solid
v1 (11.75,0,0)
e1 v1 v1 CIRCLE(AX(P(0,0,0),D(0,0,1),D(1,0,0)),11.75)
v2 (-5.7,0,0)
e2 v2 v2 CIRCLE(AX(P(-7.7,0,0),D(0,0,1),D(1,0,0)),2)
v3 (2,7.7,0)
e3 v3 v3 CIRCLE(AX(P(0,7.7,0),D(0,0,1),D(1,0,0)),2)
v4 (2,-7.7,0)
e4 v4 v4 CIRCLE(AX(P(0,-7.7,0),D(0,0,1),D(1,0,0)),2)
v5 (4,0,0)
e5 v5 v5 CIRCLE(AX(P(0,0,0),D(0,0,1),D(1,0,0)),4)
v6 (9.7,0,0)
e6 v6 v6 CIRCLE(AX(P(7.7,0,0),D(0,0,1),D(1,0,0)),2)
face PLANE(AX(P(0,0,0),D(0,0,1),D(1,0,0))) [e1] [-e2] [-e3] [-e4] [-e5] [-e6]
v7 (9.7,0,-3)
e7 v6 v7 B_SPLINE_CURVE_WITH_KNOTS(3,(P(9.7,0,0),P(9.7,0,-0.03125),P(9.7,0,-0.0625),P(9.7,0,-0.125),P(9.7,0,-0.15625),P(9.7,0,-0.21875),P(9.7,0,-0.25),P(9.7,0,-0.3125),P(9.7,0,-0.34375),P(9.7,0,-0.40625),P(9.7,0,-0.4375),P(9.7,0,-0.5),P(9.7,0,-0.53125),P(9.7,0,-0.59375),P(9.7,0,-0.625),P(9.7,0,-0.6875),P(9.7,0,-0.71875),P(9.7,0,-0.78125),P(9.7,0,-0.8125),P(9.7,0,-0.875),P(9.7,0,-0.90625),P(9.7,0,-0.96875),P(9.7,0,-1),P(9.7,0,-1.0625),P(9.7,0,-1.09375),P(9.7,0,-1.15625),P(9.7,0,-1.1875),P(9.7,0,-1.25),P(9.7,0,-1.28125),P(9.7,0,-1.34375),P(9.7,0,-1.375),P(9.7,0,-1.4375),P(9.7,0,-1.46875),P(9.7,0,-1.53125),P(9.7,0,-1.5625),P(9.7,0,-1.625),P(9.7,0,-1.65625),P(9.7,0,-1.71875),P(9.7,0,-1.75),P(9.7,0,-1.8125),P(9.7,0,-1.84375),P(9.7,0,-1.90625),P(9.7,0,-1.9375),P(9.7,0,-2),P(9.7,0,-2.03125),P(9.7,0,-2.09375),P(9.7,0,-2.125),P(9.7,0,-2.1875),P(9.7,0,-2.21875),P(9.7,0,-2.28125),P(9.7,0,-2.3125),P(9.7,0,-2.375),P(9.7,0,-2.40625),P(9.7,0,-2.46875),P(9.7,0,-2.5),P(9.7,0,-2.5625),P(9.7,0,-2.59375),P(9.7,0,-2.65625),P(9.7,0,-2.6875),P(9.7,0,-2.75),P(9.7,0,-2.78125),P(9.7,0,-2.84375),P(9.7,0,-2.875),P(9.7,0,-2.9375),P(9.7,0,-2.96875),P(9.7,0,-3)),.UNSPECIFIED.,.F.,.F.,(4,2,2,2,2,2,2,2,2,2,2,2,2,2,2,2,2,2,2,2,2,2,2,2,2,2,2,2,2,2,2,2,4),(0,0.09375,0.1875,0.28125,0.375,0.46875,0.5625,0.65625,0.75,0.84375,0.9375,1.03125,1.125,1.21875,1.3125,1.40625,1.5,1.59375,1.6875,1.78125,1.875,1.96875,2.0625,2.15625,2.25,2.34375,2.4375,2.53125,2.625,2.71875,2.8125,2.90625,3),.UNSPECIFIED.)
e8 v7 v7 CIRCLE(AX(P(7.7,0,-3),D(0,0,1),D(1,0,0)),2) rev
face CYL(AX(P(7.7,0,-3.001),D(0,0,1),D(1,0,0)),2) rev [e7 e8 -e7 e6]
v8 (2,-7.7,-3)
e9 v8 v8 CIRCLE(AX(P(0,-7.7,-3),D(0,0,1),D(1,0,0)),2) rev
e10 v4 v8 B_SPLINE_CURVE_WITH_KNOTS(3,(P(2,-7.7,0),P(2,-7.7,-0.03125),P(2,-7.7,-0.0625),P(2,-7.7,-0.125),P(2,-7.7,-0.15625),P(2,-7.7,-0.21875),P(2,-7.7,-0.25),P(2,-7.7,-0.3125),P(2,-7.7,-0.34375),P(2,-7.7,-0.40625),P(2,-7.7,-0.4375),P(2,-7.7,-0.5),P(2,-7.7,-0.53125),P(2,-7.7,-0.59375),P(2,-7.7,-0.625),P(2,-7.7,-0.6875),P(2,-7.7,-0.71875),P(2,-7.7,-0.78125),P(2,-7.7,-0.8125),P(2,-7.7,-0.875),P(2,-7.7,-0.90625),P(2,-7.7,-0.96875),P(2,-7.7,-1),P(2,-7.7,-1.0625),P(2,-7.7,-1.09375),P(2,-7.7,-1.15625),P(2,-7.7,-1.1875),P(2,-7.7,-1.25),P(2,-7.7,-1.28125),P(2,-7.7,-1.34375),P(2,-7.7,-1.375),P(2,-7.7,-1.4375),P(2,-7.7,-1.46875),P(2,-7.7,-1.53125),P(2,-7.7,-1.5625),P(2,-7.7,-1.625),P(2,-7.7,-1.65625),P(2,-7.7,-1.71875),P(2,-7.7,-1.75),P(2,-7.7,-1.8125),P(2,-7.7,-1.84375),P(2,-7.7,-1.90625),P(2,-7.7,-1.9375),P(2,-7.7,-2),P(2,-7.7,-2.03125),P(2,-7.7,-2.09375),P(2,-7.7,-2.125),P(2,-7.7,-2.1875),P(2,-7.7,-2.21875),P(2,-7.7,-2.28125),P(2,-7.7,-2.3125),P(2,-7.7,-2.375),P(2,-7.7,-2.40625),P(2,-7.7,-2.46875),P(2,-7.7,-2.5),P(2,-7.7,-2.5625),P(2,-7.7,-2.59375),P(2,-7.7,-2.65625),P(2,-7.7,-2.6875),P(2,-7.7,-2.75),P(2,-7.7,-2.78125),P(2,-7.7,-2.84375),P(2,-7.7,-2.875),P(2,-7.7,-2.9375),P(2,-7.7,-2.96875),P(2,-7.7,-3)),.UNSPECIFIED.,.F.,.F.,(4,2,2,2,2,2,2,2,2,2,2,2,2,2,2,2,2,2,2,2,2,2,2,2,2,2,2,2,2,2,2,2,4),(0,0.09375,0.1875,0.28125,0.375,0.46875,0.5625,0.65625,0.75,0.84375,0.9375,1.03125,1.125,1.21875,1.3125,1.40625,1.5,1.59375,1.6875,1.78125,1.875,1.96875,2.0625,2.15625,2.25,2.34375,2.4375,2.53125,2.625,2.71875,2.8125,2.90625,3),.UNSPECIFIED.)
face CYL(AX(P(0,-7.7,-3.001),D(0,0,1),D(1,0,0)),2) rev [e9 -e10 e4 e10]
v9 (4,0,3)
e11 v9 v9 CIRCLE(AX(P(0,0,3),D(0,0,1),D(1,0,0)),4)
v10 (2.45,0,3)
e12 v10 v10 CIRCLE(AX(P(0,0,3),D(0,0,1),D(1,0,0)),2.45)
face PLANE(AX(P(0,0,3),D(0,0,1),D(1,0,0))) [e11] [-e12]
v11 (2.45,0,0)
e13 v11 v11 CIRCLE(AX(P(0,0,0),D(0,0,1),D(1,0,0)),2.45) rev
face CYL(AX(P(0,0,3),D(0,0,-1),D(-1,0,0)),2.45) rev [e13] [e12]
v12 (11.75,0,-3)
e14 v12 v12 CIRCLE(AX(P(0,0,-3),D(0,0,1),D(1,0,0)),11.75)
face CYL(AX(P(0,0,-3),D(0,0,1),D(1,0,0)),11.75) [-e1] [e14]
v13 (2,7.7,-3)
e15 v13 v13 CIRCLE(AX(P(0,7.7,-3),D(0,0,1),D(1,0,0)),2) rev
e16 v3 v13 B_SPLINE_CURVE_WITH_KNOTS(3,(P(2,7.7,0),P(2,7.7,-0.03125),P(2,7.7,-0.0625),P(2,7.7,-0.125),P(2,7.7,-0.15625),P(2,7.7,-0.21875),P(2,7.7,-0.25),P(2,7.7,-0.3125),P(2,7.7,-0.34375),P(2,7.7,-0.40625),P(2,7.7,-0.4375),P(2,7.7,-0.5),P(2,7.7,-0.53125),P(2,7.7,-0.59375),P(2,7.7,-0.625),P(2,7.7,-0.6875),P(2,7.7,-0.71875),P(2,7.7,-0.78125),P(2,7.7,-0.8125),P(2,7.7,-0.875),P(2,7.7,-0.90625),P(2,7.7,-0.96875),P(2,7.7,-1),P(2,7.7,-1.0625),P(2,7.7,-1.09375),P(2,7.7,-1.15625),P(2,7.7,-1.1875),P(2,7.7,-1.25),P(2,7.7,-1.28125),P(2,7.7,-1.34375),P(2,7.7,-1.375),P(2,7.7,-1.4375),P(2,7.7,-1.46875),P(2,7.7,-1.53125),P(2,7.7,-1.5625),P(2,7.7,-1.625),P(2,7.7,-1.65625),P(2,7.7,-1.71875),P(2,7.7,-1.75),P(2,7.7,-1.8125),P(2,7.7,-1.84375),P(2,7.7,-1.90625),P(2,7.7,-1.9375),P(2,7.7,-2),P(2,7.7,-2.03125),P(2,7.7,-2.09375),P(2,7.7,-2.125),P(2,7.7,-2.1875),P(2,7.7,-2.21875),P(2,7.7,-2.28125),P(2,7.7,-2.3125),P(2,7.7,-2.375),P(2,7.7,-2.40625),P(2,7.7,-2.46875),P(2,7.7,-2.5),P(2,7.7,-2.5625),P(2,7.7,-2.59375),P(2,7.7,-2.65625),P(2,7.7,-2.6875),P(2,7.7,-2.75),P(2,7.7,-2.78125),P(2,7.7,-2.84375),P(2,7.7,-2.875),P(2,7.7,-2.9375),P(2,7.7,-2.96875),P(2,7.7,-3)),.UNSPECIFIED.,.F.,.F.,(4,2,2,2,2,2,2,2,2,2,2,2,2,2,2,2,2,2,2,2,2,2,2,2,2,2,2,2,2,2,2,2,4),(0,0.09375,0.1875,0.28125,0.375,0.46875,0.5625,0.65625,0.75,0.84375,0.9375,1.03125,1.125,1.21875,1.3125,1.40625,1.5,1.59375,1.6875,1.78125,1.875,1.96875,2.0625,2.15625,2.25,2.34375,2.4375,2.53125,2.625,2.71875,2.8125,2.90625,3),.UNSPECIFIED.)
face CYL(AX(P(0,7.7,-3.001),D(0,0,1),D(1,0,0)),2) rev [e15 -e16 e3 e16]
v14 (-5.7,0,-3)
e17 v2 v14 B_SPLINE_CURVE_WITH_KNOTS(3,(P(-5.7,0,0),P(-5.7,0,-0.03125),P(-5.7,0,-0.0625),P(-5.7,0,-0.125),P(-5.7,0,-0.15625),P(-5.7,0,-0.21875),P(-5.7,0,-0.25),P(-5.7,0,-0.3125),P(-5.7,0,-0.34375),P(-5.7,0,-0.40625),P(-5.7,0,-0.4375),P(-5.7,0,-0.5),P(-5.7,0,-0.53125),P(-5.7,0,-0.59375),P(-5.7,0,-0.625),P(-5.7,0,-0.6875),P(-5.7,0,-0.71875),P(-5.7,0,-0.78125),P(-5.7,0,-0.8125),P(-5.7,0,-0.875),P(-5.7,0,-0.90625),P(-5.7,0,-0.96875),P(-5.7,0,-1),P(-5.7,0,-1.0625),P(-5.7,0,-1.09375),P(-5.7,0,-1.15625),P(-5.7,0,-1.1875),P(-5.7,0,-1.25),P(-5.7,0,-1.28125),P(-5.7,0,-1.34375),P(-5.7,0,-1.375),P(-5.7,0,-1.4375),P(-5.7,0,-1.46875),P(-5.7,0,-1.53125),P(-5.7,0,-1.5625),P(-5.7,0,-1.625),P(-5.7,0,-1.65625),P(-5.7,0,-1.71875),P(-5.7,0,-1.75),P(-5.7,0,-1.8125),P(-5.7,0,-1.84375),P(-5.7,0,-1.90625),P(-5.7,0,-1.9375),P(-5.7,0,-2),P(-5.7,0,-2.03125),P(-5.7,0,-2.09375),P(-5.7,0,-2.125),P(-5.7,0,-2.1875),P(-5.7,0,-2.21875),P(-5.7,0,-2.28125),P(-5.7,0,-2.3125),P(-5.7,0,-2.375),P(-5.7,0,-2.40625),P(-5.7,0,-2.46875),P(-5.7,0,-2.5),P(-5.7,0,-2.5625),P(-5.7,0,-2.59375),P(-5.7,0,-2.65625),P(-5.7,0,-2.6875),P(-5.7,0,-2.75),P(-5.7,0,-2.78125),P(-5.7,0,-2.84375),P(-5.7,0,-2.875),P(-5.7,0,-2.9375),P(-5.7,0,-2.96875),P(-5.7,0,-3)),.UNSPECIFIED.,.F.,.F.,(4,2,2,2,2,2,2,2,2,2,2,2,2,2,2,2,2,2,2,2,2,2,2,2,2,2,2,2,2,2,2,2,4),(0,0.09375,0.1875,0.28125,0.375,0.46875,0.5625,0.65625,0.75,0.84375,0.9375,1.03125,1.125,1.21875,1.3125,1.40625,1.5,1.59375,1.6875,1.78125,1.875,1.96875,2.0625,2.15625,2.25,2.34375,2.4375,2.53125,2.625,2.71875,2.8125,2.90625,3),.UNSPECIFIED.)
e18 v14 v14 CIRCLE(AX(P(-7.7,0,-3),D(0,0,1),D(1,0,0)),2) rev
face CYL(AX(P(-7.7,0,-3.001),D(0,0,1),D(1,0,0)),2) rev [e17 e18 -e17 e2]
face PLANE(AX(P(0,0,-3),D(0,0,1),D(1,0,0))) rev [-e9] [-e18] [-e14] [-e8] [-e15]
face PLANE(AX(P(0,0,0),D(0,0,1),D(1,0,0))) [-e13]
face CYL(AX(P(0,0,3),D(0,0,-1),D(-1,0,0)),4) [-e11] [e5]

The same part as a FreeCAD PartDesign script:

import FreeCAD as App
import Part
import Sketcher
from FreeCAD import Vector
Q = App.Units.Quantity

doc = App.newDocument("Part")
body = doc.addObject("PartDesign::Body", "Body")

sketch1 = body.newObject("Sketcher::SketchObject", "Sketch")
sketch1.AttachmentSupport = (doc.getObject("XY_Plane"), [""])
sketch1.MapMode = "FlatFace"
sketch1.addGeometry(Part.Circle(Vector(0, 0, 0), Vector(0, 0, 1), 11.75), False)
sketch1.addConstraint([
    Sketcher.Constraint("Coincident", 0, 3, -1, 1),
    Sketcher.Constraint("Diameter", 0, Q("23.5 mm")),
])
pad1 = body.newObject("PartDesign::Pad", "Pad")
pad1.Profile = sketch1
pad1.Length = 3
pad1.Reversed = True

sketch2 = body.newObject("Sketcher::SketchObject", "Sketch001")
sketch2.AttachmentSupport = (doc.getObject("XY_Plane"), [""])
sketch2.MapMode = "FlatFace"
sketch2.addGeometry([
    Part.Circle(Vector(0, 0, 0), Vector(0, 0, 1), 4),
    Part.Circle(Vector(0, 0, 0), Vector(0, 0, 1), 2.45),
], False)
sketch2.addConstraint([
    Sketcher.Constraint("Coincident", 0, 3, -1, 1),
    Sketcher.Constraint("Coincident", 1, 3, -1, 1),
    Sketcher.Constraint("Diameter", 0, Q("8 mm")),
    Sketcher.Constraint("Diameter", 1, Q("4.9 mm")),
])
pad2 = body.newObject("PartDesign::Pad", "Pad001")
pad2.Profile = sketch2
pad2.Length = 3

sketch3 = body.newObject("Sketcher::SketchObject", "Sketch002")
sketch3.AttachmentSupport = (doc.getObject("XY_Plane"), [""])
sketch3.MapMode = "FlatFace"
sketch3.addGeometry(Part.Circle(Vector(0, 7.7, 0), Vector(0, 0, 1), 2), False)
sketch3.addConstraint([
    Sketcher.Constraint("PointOnObject", 0, 3, -2),
    Sketcher.Constraint("Diameter", 0, Q("4 mm")),
    Sketcher.Constraint("DistanceY", -1, 1, 0, 3, Q("7.7 mm")),
])
pocket1 = body.newObject("PartDesign::Pocket", "Pocket")
pocket1.Profile = sketch3
pocket1.Type = "UpToFirst"

sketch4 = body.newObject("Sketcher::SketchObject", "Sketch003")
sketch4.AttachmentSupport = (doc.getObject("XY_Plane"), [""])
sketch4.MapMode = "FlatFace"
sketch4.addGeometry(Part.Circle(Vector(7.7, 0, 0), Vector(0, 0, 1), 2), False)
sketch4.addConstraint([
    Sketcher.Constraint("PointOnObject", 0, 3, -1),
    Sketcher.Constraint("Diameter", 0, Q("4 mm")),
    Sketcher.Constraint("DistanceX", -1, 1, 0, 3, Q("7.7 mm")),
])
pocket2 = body.newObject("PartDesign::Pocket", "Pocket001")
pocket2.Profile = sketch4
pocket2.Type = "UpToFirst"

sketch5 = body.newObject("Sketcher::SketchObject", "Sketch004")
sketch5.AttachmentSupport = (doc.getObject("XY_Plane"), [""])
sketch5.MapMode = "FlatFace"
sketch5.addGeometry(Part.Circle(Vector(0, -7.7, 0), Vector(0, 0, 1), 2), False)
sketch5.addConstraint([
    Sketcher.Constraint("PointOnObject", 0, 3, -2),
    Sketcher.Constraint("Diameter", 0, Q("4 mm")),
    Sketcher.Constraint("DistanceY", 0, 3, -1, 1, Q("7.7 mm")),
])
pocket3 = body.newObject("PartDesign::Pocket", "Pocket002")
pocket3.Profile = sketch5
pocket3.Type = "UpToFirst"

sketch6 = body.newObject("Sketcher::SketchObject", "Sketch005")
sketch6.AttachmentSupport = (doc.getObject("XY_Plane"), [""])
sketch6.MapMode = "FlatFace"
sketch6.addGeometry(Part.Circle(Vector(-7.7, 0, 0), Vector(0, 0, 1), 2), False)
sketch6.addConstraint([
    Sketcher.Constraint("PointOnObject", 0, 3, -1),
    Sketcher.Constraint("Diameter", 0, Q("4 mm")),
    Sketcher.Constraint("DistanceX", 0, 3, -1, 1, Q("7.7 mm")),
])
pocket4 = body.newObject("PartDesign::Pocket", "Pocket003")
pocket4.Profile = sketch6
pocket4.Type = "UpToFirst"

doc.recompute()
